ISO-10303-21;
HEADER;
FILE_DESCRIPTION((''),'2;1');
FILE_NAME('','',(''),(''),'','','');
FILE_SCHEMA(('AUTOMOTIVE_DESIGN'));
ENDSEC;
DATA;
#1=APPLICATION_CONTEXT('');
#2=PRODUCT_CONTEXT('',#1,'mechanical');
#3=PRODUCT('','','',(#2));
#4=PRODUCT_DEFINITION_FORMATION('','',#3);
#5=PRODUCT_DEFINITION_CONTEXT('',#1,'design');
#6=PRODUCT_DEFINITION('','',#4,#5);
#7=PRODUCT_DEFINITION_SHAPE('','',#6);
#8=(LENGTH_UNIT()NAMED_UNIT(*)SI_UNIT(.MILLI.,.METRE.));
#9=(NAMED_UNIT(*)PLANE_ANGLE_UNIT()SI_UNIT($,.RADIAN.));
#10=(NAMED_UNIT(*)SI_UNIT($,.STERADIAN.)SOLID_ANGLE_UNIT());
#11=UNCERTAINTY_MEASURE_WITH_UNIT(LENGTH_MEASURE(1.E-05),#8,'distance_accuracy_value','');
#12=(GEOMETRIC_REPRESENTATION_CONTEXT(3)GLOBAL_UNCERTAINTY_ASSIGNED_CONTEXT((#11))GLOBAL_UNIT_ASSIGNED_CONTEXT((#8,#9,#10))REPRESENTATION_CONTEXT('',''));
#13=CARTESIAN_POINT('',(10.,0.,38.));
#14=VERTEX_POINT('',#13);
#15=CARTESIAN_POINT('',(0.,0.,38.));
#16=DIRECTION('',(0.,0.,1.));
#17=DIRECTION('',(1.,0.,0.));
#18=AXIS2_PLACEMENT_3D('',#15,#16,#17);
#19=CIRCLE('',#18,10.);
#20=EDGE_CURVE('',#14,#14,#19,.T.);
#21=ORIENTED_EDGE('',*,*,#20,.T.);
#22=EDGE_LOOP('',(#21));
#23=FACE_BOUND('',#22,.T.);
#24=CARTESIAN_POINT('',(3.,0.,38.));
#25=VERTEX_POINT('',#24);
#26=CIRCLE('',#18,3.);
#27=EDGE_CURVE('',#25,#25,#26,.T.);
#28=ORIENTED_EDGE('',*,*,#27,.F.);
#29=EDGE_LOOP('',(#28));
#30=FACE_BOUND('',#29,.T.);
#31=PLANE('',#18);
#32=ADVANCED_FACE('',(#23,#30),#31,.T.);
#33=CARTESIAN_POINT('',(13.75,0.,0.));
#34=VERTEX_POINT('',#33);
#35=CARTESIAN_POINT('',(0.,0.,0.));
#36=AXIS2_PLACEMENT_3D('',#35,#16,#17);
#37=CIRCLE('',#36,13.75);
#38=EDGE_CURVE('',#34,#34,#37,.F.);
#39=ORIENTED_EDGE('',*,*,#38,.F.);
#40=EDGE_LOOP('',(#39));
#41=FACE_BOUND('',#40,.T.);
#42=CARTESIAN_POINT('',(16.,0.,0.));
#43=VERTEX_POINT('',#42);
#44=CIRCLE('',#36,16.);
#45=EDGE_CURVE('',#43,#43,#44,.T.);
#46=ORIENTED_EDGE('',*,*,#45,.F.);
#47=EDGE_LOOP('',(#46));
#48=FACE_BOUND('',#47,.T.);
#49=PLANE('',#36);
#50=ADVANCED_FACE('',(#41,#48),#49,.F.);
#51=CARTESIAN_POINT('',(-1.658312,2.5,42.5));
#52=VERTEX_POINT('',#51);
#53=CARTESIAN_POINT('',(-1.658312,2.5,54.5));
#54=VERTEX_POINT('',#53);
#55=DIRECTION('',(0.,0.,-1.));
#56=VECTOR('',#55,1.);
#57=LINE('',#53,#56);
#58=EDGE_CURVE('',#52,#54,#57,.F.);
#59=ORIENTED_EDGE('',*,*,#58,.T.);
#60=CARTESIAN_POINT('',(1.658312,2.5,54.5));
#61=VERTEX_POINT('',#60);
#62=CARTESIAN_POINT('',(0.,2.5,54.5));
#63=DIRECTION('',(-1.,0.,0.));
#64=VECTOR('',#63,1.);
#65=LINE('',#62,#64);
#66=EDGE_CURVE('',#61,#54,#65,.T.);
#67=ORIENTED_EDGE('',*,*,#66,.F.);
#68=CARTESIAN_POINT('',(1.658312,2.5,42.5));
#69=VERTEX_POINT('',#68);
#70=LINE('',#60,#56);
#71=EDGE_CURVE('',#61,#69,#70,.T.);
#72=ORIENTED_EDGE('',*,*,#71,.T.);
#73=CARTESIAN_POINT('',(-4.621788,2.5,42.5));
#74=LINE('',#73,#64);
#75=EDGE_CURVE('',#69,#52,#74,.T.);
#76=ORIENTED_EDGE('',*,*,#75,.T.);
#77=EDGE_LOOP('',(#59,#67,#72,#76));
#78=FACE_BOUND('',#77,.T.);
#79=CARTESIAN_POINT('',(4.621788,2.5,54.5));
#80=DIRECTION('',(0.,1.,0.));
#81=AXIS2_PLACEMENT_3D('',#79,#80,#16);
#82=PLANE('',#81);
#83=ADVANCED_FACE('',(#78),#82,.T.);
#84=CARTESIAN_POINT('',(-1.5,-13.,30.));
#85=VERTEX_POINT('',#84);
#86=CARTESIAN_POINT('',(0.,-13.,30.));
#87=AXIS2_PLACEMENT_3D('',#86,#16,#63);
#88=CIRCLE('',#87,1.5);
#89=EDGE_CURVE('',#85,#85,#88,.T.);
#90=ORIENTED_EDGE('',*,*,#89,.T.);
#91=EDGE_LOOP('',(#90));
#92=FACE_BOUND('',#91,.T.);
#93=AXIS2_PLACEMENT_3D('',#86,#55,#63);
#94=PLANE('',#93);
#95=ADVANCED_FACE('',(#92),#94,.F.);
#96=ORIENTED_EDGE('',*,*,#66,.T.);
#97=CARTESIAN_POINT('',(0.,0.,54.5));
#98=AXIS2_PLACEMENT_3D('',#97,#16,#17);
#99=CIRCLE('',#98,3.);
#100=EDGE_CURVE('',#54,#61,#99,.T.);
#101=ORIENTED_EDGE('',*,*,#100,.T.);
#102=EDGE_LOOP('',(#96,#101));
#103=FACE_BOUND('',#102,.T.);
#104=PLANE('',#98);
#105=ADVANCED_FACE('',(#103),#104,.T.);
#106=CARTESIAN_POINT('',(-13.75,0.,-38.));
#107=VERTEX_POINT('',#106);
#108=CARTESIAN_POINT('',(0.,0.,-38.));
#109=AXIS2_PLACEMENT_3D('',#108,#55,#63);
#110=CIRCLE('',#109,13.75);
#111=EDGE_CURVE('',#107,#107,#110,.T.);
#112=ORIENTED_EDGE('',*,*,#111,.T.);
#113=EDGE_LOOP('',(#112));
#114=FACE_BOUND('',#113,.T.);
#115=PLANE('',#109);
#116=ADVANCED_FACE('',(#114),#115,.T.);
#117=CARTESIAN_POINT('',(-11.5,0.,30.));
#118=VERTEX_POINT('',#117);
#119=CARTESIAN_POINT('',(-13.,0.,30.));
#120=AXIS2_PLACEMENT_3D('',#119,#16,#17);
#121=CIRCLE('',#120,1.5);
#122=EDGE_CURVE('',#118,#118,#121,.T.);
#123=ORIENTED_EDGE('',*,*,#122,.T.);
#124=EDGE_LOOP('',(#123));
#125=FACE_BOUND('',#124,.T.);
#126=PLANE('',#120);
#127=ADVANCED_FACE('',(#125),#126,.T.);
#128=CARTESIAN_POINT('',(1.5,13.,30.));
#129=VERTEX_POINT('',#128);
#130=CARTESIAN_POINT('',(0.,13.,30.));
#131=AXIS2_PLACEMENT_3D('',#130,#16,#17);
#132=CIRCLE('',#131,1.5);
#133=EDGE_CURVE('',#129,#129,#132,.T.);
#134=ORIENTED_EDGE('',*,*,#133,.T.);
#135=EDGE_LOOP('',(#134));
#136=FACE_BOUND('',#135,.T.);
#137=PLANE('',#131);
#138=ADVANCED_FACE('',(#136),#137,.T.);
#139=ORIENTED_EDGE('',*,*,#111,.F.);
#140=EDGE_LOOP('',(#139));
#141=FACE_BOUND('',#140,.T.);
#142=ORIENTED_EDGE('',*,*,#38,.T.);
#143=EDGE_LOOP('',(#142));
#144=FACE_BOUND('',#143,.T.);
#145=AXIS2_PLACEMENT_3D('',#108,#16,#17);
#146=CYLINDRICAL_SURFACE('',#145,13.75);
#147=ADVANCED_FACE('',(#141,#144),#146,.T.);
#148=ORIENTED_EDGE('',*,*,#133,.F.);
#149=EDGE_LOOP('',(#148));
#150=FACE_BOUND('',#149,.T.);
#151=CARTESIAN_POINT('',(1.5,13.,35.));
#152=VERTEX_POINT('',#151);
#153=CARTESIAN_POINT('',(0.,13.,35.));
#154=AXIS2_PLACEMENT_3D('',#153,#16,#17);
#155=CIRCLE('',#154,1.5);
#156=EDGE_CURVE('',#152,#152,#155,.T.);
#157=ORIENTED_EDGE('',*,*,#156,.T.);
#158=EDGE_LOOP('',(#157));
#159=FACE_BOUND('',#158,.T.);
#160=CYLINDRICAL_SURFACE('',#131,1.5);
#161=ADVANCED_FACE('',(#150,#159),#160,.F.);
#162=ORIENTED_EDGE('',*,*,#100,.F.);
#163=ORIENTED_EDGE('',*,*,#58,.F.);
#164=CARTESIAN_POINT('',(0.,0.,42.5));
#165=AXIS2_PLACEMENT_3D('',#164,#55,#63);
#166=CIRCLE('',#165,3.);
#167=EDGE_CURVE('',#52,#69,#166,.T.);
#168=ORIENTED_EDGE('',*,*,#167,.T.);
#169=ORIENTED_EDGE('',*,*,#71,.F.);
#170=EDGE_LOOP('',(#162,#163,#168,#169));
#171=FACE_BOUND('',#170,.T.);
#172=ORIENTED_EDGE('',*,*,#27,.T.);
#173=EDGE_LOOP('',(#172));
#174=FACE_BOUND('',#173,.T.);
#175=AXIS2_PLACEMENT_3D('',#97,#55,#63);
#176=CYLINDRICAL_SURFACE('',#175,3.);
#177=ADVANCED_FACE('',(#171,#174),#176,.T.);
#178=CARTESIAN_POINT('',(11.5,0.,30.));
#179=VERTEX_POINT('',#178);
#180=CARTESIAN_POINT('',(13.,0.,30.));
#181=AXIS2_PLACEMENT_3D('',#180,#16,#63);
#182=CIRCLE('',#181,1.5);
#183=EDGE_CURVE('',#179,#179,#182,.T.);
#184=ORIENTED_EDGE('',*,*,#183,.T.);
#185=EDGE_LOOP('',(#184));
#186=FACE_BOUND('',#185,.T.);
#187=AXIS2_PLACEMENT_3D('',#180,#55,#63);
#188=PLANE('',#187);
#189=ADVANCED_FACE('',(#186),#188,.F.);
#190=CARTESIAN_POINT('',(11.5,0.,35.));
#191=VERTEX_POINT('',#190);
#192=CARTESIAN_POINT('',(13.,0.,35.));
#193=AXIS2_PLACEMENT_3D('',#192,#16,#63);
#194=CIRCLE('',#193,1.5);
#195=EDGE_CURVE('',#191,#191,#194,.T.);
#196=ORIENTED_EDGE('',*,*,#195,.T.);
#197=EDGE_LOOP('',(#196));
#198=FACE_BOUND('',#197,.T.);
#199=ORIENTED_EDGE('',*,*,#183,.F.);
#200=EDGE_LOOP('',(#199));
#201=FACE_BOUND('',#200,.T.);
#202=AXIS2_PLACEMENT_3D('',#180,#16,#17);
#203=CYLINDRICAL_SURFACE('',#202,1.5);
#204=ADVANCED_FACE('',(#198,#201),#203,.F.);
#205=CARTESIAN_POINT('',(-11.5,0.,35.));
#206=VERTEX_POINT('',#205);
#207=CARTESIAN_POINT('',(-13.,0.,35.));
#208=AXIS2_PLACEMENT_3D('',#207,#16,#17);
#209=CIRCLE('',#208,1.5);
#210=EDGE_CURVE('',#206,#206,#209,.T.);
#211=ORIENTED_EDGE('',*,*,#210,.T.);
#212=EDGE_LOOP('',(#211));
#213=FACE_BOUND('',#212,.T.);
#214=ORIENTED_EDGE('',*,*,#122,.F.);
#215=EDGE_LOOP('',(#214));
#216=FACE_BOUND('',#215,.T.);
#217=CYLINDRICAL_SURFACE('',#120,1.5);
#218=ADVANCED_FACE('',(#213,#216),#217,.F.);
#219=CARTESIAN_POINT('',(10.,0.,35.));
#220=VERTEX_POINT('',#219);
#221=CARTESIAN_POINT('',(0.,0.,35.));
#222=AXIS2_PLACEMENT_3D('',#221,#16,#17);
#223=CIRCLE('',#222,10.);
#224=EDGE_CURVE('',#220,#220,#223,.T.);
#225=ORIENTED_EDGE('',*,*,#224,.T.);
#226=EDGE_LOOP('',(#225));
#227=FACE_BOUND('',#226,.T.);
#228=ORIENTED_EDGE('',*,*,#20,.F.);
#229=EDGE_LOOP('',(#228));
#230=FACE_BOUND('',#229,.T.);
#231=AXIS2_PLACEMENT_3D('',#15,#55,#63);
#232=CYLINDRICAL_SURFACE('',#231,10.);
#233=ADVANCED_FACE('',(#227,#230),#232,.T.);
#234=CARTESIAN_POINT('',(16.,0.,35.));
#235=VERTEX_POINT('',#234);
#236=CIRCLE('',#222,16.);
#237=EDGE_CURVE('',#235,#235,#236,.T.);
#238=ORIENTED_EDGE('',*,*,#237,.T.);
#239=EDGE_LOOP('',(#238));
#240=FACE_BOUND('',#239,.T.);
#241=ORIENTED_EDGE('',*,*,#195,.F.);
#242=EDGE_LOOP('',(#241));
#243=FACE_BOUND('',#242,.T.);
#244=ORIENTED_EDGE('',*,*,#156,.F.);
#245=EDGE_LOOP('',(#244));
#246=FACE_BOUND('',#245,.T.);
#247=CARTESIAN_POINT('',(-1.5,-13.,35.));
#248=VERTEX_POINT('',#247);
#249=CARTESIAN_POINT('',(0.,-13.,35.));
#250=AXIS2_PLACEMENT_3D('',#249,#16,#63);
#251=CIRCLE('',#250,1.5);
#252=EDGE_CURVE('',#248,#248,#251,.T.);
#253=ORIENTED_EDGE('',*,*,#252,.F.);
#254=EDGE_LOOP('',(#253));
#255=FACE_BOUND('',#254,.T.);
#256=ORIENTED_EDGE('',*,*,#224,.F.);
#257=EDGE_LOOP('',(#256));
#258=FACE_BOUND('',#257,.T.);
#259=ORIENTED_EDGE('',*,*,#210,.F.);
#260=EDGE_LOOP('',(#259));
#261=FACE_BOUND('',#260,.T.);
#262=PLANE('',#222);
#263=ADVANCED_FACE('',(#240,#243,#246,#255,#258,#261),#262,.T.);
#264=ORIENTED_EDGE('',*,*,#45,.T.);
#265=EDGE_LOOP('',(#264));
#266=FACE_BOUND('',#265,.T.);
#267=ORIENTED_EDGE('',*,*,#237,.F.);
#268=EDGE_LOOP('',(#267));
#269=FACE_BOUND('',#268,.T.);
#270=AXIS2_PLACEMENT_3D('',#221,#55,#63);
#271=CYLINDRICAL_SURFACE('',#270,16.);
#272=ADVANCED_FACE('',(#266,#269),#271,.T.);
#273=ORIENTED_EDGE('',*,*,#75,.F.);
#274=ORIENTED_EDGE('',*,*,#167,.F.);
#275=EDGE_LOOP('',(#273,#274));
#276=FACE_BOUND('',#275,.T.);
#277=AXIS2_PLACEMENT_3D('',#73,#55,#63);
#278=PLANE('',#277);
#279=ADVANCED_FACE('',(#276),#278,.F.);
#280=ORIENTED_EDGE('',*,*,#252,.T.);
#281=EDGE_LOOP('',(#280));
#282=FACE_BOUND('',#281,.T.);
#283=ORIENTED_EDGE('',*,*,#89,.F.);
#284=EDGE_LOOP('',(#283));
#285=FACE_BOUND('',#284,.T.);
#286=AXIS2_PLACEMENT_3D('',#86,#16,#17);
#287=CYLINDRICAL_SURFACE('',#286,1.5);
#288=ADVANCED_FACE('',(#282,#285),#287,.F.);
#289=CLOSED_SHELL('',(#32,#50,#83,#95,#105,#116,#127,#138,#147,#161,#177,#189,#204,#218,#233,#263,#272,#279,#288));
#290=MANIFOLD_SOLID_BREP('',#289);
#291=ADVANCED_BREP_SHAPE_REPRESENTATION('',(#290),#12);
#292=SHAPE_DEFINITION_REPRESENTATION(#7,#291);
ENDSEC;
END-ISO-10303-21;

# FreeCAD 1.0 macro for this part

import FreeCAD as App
import Part
import Sketcher

V = App.Vector
Q = App.Units.Quantity

doc = App.newDocument("Part")
body = doc.addObject("PartDesign::Body", "Body")

# Sketch on XY plane
sketch1 = body.newObject("Sketcher::SketchObject", "Sketch")
sketch1.AttachmentSupport = (doc.getObject("XY_Plane"), [""])
sketch1.MapMode = "FlatFace"
sketch1.addGeometry(Part.Circle(V(0, 0, 0), V(0, 0, 1), 16), False)
sketch1.addConstraint(Sketcher.Constraint("Coincident", 0, 3, -1, 1))
sketch1.addConstraint(Sketcher.Constraint("Diameter", 0, Q("32 mm")))
pad1 = body.newObject("PartDesign::Pad", "Pad")
pad1.Profile = sketch1
pad1.Length = 35

# Sketch on XY plane
sketch2 = body.newObject("Sketcher::SketchObject", "Sketch001")
sketch2.AttachmentSupport = (doc.getObject("XY_Plane"), [""])
sketch2.MapMode = "FlatFace"
sketch2.AttachmentOffset = App.Placement(V(0, 0, 35), App.Rotation())
sketch2.addGeometry(Part.Circle(V(0, 0, 0), V(0, 0, 1), 10), False)
sketch2.addConstraint(Sketcher.Constraint("Coincident", 0, 3, -1, 1))
sketch2.addConstraint(Sketcher.Constraint("Diameter", 0, Q("20 mm")))
pad2 = body.newObject("PartDesign::Pad", "Pad001")
pad2.Profile = sketch2
pad2.Length = 3

# Sketch on XY plane
sketch3 = body.newObject("Sketcher::SketchObject", "Sketch002")
sketch3.AttachmentSupport = (doc.getObject("XY_Plane"), [""])
sketch3.MapMode = "FlatFace"
sketch3.AttachmentOffset = App.Placement(V(0, 0, 38), App.Rotation())
sketch3.addGeometry(Part.Circle(V(0, 0, 0), V(0, 0, 1), 3), False)
sketch3.addConstraint(Sketcher.Constraint("Coincident", 0, 3, -1, 1))
sketch3.addConstraint(Sketcher.Constraint("Diameter", 0, Q("6 mm")))
pad3 = body.newObject("PartDesign::Pad", "Pad002")
pad3.Profile = sketch3
pad3.Length = 16.5

# Sketch on XZ plane
sketch4 = body.newObject("Sketcher::SketchObject", "Sketch003")
sketch4.AttachmentSupport = (doc.getObject("XZ_Plane"), [""])
sketch4.MapMode = "FlatFace"
sketch4.AttachmentOffset = App.Placement(V(0, 0, -3), App.Rotation())
sketch4.addGeometry(Part.LineSegment(V(-5, 42, 0), V(-5, 54, 0)), False)
sketch4.addGeometry(Part.LineSegment(V(-5, 54, 0), V(5, 54, 0)), False)
sketch4.addGeometry(Part.LineSegment(V(5, 54, 0), V(5, 42, 0)), False)
sketch4.addGeometry(Part.LineSegment(V(5, 42, 0), V(-5, 42, 0)), False)
sketch4.addConstraint(Sketcher.Constraint("Coincident", 0, 2, 1, 1))
sketch4.addConstraint(Sketcher.Constraint("Coincident", 1, 2, 2, 1))
sketch4.addConstraint(Sketcher.Constraint("Coincident", 2, 2, 3, 1))
sketch4.addConstraint(Sketcher.Constraint("Coincident", 3, 2, 0, 1))
sketch4.addConstraint(Sketcher.Constraint("Vertical", 0))
sketch4.addConstraint(Sketcher.Constraint("Horizontal", 1))
sketch4.addConstraint(Sketcher.Constraint("Vertical", 2))
sketch4.addConstraint(Sketcher.Constraint("Horizontal", 3))
sketch4.addConstraint(Sketcher.Constraint("DistanceY", 0, 1, 0, 2, Q("12 mm")))
sketch4.addConstraint(Sketcher.Constraint("DistanceY", -1, 1, 0, 2, Q("54.5 mm")))
sketch4.addConstraint(Sketcher.Constraint("DistanceX", 1, 1, 1, 2, Q("9.243576 mm")))
sketch4.addConstraint(Sketcher.Constraint("DistanceX", 0, 2, -1, 1, Q("4.621788 mm")))
pocket1 = body.newObject("PartDesign::Pocket", "Pocket")
pocket1.Profile = sketch4
pocket1.Length = 0.5
pocket1.Reversed = True

# Sketch on XY plane
sketch5 = body.newObject("Sketcher::SketchObject", "Sketch004")
sketch5.AttachmentSupport = (doc.getObject("XY_Plane"), [""])
sketch5.MapMode = "FlatFace"
sketch5.addGeometry(Part.Circle(V(0, 0, 0), V(0, 0, 1), 14), False)
sketch5.addConstraint(Sketcher.Constraint("Coincident", 0, 3, -1, 1))
sketch5.addConstraint(Sketcher.Constraint("Diameter", 0, Q("27.5 mm")))
pad4 = body.newObject("PartDesign::Pad", "Pad003")
pad4.Profile = sketch5
pad4.Length = 38
pad4.Reversed = True

# Sketch on XY plane
sketch6 = body.newObject("Sketcher::SketchObject", "Sketch005")
sketch6.AttachmentSupport = (doc.getObject("XY_Plane"), [""])
sketch6.MapMode = "FlatFace"
sketch6.AttachmentOffset = App.Placement(V(0, 0, 35), App.Rotation())
sketch6.addGeometry(Part.Circle(V(0, 13, 0), V(0, 0, 1), 1.5), False)
sketch6.addGeometry(Part.Circle(V(-13, 0, 0), V(0, 0, 1), 1.5), False)
sketch6.addGeometry(Part.Circle(V(13, 0, 0), V(0, 0, 1), 1.5), False)
sketch6.addGeometry(Part.Circle(V(0, -13, 0), V(0, 0, 1), 1.5), False)
sketch6.addConstraint(Sketcher.Constraint("Equal", 0, 1))
sketch6.addConstraint(Sketcher.Constraint("Equal", 1, 2))
sketch6.addConstraint(Sketcher.Constraint("Equal", 2, 3))
sketch6.addConstraint(Sketcher.Constraint("Symmetric", 1, 3, 2, 3, -1, 1))
sketch6.addConstraint(Sketcher.Constraint("Symmetric", 0, 3, 3, 3, -1, 1))
sketch6.addConstraint(Sketcher.Constraint("PointOnObject", 0, 3, -2))
sketch6.addConstraint(Sketcher.Constraint("PointOnObject", 1, 3, -1))
sketch6.addConstraint(Sketcher.Constraint("Diameter", 0, Q("3 mm")))
sketch6.addConstraint(Sketcher.Constraint("DistanceY", -1, 1, 0, 3, Q("13 mm")))
sketch6.addConstraint(Sketcher.Constraint("DistanceX", 1, 3, -1, 1, Q("13 mm")))
pocket2 = body.newObject("PartDesign::Pocket", "Pocket001")
pocket2.Profile = sketch6
pocket2.Length = 5

doc.recompute()
